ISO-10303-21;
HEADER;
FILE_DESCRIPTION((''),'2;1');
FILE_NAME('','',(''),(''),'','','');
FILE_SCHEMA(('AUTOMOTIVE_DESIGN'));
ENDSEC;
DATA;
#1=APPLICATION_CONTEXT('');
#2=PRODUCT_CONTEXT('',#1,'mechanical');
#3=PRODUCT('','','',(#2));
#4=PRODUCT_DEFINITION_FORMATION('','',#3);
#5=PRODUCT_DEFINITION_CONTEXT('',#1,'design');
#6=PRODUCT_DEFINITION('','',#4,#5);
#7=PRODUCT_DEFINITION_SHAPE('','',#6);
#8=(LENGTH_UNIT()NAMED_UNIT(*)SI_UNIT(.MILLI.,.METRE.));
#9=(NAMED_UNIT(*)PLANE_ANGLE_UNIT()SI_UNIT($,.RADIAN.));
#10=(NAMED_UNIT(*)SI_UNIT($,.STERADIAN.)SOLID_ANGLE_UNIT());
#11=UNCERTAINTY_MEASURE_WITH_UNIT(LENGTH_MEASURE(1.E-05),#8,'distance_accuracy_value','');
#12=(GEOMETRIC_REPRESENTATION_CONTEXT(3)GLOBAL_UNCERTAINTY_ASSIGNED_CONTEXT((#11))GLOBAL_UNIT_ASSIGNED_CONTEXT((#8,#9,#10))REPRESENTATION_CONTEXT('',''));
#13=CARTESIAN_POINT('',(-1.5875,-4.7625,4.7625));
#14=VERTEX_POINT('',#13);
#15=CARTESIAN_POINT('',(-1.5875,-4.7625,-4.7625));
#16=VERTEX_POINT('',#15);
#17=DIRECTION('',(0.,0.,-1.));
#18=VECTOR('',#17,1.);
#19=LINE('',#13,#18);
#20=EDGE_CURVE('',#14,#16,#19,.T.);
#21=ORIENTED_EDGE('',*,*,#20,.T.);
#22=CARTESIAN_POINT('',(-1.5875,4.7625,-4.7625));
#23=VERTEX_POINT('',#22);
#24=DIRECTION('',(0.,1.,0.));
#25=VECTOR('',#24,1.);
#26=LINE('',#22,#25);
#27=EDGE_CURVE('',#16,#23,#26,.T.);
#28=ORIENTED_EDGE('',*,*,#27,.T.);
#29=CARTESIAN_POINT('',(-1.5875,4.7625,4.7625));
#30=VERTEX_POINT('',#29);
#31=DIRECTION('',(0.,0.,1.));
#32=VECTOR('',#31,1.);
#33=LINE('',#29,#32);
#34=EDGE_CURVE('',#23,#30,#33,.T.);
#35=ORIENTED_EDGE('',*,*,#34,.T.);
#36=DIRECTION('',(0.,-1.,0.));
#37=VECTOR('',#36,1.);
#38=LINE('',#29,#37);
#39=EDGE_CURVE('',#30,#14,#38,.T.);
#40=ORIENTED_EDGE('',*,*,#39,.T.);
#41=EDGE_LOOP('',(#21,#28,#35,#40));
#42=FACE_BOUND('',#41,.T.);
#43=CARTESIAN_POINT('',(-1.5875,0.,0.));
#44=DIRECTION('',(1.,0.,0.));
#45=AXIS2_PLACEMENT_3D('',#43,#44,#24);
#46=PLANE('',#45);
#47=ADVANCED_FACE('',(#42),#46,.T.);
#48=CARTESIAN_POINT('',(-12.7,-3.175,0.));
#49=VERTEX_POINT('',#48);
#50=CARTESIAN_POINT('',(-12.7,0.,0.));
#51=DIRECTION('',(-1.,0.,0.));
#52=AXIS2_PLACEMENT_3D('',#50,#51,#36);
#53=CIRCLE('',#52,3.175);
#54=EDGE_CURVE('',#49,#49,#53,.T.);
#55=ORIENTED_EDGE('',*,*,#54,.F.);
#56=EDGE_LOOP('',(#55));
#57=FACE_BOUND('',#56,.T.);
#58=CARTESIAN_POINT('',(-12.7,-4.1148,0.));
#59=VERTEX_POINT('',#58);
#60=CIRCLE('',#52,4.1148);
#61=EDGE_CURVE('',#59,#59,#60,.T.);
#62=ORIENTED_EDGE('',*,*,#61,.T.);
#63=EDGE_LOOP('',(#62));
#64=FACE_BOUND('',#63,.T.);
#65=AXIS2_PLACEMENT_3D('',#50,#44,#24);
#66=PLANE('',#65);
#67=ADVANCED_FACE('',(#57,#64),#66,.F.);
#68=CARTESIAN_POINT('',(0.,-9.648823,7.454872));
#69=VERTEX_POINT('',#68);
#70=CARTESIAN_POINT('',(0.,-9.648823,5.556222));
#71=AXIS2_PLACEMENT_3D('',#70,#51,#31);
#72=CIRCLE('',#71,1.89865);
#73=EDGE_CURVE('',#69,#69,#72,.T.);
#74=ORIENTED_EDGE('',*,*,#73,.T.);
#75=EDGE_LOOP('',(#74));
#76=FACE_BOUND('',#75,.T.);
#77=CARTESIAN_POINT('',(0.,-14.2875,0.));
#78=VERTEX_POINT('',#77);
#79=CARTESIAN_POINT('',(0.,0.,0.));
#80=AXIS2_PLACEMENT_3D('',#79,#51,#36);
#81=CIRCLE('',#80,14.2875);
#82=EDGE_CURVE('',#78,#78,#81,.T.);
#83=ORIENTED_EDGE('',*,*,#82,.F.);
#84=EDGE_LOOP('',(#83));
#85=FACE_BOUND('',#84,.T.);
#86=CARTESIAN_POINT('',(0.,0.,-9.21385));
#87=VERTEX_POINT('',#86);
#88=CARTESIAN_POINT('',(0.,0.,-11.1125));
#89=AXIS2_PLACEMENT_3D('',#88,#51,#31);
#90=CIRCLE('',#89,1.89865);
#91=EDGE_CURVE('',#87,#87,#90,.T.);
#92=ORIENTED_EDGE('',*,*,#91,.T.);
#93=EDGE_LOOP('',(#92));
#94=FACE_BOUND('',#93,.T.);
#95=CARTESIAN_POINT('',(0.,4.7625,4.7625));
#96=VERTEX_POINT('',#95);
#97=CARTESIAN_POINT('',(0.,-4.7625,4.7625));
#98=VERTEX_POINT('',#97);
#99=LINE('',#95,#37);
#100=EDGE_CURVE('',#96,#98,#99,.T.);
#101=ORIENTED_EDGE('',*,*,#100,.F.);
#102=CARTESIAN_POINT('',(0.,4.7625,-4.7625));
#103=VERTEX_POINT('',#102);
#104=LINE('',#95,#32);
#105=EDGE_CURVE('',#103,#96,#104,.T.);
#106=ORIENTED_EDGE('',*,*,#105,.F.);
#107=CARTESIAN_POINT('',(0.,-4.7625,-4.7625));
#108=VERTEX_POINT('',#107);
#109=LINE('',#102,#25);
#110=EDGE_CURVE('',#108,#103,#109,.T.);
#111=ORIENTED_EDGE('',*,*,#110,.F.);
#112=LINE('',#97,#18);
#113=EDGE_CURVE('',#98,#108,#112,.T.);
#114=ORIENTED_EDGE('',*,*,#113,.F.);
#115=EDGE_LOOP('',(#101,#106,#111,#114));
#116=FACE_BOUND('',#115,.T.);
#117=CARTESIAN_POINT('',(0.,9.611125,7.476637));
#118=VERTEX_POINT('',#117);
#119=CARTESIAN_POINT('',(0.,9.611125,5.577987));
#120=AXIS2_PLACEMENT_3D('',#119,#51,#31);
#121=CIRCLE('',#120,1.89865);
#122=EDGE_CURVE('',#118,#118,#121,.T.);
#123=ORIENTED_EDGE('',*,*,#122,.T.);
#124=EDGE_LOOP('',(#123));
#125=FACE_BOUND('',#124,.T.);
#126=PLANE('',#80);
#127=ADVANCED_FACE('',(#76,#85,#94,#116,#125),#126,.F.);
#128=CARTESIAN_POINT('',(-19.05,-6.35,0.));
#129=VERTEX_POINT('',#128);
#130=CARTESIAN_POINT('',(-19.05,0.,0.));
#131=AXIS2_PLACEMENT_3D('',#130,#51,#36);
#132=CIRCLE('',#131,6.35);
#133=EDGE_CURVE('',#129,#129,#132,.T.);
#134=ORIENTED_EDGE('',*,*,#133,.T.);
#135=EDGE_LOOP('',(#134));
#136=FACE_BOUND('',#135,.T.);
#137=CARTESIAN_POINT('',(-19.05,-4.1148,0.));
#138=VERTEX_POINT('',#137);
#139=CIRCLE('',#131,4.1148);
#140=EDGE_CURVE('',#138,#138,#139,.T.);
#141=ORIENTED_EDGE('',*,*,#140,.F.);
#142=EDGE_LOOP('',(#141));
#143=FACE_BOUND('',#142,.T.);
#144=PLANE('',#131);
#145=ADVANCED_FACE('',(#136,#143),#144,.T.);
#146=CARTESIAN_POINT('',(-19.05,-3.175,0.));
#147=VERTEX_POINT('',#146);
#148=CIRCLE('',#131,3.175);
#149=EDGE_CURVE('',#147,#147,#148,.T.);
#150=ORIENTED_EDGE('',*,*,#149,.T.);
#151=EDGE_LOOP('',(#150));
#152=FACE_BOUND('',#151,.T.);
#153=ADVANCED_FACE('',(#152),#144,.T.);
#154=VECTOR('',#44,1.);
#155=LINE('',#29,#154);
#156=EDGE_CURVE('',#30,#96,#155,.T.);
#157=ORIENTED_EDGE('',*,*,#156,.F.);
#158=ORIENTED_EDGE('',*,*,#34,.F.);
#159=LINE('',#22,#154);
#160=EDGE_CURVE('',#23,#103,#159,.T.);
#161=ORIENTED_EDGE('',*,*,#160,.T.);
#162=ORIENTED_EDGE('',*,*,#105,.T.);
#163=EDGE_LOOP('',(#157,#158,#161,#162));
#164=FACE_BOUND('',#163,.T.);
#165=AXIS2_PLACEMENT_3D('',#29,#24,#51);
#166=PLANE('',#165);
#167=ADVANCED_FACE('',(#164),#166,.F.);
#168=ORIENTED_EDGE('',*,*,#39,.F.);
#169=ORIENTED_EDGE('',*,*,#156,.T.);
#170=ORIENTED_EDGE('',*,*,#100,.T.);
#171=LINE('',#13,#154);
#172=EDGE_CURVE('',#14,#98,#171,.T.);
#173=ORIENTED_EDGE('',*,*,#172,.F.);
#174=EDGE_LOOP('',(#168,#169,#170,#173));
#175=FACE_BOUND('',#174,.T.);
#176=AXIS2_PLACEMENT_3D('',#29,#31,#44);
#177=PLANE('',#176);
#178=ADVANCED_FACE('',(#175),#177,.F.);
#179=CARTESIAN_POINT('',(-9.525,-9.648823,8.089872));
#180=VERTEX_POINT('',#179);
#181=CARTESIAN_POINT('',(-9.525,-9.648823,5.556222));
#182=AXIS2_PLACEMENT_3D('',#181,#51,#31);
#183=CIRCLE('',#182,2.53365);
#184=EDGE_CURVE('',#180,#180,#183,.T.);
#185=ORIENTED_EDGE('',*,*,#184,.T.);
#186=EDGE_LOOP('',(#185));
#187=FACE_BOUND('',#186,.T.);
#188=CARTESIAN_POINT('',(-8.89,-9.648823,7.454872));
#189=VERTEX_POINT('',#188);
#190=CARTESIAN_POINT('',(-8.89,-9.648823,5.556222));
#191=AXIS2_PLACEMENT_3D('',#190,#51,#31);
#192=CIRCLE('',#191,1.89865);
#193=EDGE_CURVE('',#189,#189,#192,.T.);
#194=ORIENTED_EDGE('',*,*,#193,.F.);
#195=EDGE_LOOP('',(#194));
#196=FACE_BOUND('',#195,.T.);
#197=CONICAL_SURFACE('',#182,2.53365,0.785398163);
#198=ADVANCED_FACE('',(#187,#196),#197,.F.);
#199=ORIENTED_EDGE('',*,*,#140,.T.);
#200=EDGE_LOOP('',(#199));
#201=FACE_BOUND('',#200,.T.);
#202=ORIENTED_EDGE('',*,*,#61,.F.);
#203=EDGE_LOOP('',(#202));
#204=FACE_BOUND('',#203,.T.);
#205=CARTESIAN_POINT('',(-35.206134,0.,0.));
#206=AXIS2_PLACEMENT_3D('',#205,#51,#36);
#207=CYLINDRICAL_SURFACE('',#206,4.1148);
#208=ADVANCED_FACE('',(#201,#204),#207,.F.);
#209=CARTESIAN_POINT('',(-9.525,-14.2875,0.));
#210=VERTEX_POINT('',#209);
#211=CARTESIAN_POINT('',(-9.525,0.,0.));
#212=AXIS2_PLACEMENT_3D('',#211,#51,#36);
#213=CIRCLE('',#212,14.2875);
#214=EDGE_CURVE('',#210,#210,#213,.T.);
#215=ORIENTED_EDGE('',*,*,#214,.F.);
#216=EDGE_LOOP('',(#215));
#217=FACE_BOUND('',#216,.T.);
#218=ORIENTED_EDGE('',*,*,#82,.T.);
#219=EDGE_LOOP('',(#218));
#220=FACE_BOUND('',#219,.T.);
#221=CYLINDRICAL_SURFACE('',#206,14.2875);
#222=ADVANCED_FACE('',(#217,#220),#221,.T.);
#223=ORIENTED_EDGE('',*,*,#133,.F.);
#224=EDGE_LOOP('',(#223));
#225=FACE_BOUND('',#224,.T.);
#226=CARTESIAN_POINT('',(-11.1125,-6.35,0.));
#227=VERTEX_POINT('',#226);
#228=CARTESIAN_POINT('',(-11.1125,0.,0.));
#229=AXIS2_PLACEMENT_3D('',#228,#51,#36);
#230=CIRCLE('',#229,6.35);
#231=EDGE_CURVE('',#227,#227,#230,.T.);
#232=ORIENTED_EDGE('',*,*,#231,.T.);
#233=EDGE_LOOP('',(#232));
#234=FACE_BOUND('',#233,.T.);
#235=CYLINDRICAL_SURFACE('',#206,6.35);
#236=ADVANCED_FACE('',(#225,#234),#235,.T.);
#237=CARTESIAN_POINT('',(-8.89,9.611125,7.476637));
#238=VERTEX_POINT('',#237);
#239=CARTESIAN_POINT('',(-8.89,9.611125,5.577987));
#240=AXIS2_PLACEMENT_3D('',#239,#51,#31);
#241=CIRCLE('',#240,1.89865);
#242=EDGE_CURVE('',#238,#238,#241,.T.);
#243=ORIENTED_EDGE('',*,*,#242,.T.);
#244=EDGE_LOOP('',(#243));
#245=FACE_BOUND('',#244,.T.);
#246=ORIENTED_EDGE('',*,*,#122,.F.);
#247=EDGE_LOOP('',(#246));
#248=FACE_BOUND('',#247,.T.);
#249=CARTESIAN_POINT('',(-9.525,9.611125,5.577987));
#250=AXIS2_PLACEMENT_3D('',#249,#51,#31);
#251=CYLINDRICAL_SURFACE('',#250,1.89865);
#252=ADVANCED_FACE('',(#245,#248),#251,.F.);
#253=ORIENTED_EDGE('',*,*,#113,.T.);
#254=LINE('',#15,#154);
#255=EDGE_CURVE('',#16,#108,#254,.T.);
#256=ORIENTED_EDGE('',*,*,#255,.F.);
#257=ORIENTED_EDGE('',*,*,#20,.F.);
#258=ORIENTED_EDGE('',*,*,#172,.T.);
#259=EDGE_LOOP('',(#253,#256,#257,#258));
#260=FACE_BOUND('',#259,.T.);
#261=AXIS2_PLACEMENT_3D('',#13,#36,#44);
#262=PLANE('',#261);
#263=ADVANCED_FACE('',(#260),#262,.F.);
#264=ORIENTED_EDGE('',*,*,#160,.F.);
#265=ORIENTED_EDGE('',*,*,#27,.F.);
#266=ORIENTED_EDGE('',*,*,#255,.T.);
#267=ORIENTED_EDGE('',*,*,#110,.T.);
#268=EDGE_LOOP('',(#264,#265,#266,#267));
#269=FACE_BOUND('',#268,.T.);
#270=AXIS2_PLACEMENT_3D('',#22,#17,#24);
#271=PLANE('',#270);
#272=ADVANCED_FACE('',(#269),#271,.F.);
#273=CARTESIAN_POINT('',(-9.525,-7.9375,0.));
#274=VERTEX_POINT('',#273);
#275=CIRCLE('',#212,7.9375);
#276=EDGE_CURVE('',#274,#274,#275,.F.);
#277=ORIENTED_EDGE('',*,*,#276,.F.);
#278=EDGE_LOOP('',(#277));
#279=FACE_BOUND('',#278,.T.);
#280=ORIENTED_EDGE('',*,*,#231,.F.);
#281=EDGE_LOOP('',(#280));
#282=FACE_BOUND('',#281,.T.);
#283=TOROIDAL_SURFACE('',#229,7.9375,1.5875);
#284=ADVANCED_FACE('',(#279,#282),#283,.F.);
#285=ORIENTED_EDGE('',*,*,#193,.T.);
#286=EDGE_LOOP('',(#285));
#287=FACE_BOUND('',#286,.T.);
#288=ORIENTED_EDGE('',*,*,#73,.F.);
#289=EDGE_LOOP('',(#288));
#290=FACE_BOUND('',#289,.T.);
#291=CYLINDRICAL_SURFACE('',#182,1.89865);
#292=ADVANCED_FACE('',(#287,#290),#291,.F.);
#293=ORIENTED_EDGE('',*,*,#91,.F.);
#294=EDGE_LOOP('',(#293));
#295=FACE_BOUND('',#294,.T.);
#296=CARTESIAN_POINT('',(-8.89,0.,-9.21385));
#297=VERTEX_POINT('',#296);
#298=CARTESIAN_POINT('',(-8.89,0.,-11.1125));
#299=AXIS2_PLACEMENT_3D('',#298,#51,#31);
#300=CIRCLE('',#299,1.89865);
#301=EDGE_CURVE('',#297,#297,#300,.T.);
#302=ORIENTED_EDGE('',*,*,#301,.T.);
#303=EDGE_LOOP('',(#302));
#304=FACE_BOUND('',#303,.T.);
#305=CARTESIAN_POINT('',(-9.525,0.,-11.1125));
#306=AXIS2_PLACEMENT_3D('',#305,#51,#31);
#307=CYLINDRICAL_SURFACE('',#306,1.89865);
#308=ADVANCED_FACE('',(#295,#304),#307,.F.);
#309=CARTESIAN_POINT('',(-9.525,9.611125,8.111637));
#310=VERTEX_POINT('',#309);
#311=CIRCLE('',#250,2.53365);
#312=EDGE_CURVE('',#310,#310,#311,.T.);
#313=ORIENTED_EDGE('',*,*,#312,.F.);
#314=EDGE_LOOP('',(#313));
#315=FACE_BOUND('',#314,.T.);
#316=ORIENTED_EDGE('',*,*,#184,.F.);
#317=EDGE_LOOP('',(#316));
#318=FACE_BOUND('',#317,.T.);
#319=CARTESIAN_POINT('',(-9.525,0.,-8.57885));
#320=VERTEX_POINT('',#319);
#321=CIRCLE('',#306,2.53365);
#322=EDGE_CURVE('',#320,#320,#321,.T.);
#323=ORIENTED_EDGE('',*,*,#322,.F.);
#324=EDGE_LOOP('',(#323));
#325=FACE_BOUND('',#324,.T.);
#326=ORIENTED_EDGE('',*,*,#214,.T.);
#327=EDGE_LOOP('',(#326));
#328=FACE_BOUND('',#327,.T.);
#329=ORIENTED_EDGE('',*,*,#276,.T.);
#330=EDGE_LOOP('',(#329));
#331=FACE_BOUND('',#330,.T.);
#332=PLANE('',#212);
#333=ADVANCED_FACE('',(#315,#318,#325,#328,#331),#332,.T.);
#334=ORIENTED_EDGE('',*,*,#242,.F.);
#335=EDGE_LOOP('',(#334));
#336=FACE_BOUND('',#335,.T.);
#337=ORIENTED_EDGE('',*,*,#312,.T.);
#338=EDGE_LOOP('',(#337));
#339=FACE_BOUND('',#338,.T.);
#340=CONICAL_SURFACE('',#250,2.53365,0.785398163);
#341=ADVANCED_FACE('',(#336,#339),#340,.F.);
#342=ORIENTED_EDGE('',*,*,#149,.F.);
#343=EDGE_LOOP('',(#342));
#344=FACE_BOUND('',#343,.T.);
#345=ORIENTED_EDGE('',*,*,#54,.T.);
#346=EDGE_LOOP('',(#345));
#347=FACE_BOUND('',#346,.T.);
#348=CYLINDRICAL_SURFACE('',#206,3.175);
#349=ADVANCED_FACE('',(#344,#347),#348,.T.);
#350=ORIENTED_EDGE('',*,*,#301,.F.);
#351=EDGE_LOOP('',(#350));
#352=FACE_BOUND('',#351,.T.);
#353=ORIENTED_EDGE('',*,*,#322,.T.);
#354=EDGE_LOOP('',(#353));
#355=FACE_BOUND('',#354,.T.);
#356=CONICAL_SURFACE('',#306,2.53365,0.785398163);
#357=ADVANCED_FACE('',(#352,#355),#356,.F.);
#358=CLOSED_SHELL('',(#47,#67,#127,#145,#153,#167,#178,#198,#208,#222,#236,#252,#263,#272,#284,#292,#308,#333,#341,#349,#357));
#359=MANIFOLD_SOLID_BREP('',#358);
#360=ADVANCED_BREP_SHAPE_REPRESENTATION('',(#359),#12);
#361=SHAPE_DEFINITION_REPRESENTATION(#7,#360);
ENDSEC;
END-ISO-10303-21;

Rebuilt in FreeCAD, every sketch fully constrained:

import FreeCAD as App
import Part
import Sketcher
Q = App.Units.Quantity


def edges_at(feature, points):
    """Names of the edges that pass closest to the given points."""
    edges = feature.Shape.Edges
    near = lambda p: min(range(len(edges)), key=lambda i: edges[i].distToShape(Part.Vertex(*p))[0])
    return sorted({f"Edge{near(p) + 1}" for p in points})


def add_polygon(sketch, points):
    """Adds a closed chain of lines whose ends are joined by coincident constraints."""
    first, n = sketch.GeometryCount, len(points)
    for a, b in zip(points, points[1:] + points[:1]):
        sketch.addGeometry(Part.LineSegment(App.Vector(*a, 0), App.Vector(*b, 0)), False)
    for i in range(n):
        sketch.addConstraint(Sketcher.Constraint("Coincident", first + i, 2, first + (i + 1) % n, 1))

doc = App.newDocument("Part")
params = doc.addObject("Spreadsheet::Sheet", "Params")
for row, (alias, value) in enumerate([
    ("sketch1_width", "0.75 in"),
    ("sketch1_width2", "0.25 in"),
    ("sketch1_height", "0.5625 in"),
    ("sketch1_height2", "0.3125 in"),
    ("sketch1_height3", "0.088 in"),
    ("revolution_angle", "360 deg"),
    ("sketch2_width", "0.375 in"),
    ("pocket1_length", "0.0625 in"),
    ("fillet_radius", "0.0625 in"),
    ("hole_diameter", "0.1495 in"),
    ("hole_csink_diameter", "0.1995 in"),
], start=1):
    params.set(f"A{row}", alias)
    params.set(f"B{row}", "=" + value)
    params.setAlias(f"B{row}", alias)

body = doc.addObject("PartDesign::Body", "Body")

sketch1 = body.newObject("Sketcher::SketchObject", "Sketch")
sketch1.AttachmentSupport = (doc.getObject("XY_Plane"), [""])
sketch1.MapMode = "FlatFace"
add_polygon(sketch1, [(-19.1, 0), (0, 0), (0, 14.3), (-9.5, 14.3), (-9.5, 6.3), (-19.1, 6.3), (-19.1, 4.1), (-12.7, 4.1), (-12.7, 3.2), (-19.1, 3.2)])
sketch1.addConstraint(Sketcher.Constraint("Horizontal", 0))
sketch1.addConstraint(Sketcher.Constraint("Vertical", 1))
sketch1.addConstraint(Sketcher.Constraint("Horizontal", 2))
sketch1.addConstraint(Sketcher.Constraint("Vertical", 3))
sketch1.addConstraint(Sketcher.Constraint("Horizontal", 4))
sketch1.addConstraint(Sketcher.Constraint("Vertical", 5))
sketch1.addConstraint(Sketcher.Constraint("Horizontal", 6))
sketch1.addConstraint(Sketcher.Constraint("Vertical", 7))
sketch1.addConstraint(Sketcher.Constraint("Horizontal", 8))
sketch1.addConstraint(Sketcher.Constraint("Vertical", 9))
sketch1.addConstraint(Sketcher.Constraint("Coincident", 0, 2, -1, 1))
sketch1.addConstraint(Sketcher.Constraint("Vertical", 5, 2, 8, 2))
sketch1.addConstraint(Sketcher.Constraint("Equal", 2, 4))
sketch1.addConstraint(Sketcher.Constraint("DistanceX", 0, 1, 0, 2, Q("0.75 in")))
sketch1.addConstraint(Sketcher.Constraint("DistanceX", 6, 1, 6, 2, Q("0.25 in")))
sketch1.addConstraint(Sketcher.Constraint("DistanceY", 1, 1, 1, 2, Q("0.5625 in")))
sketch1.addConstraint(Sketcher.Constraint("DistanceY", 3, 2, 3, 1, Q("0.3125 in")))
sketch1.addConstraint(Sketcher.Constraint("DistanceY", 5, 2, 5, 1, Q("0.088 in")))
sketch1.addConstraint(Sketcher.Constraint("DistanceY", 7, 2, 7, 1, Q("0.037 in")))
sketch1.setExpression("Constraints[23]", "Params.sketch1_width")
sketch1.setExpression("Constraints[24]", "Params.sketch1_width2")
sketch1.setExpression("Constraints[25]", "Params.sketch1_height")
sketch1.setExpression("Constraints[26]", "Params.sketch1_height2")
sketch1.setExpression("Constraints[27]", "Params.sketch1_height3")
revolution = body.newObject("PartDesign::Revolution", "Revolution")
revolution.Profile = sketch1
revolution.ReferenceAxis = (sketch1, ["H_Axis"])
revolution.setExpression("Angle", "Params.revolution_angle")

sketch2 = body.newObject("Sketcher::SketchObject", "Sketch001")
sketch2.AttachmentSupport = (doc.getObject("YZ_Plane"), [""])
sketch2.MapMode = "FlatFace"
add_polygon(sketch2, [(5, 5), (-5, 5), (-5, -5), (5, -5)])
sketch2.addConstraint(Sketcher.Constraint("Horizontal", 0))
sketch2.addConstraint(Sketcher.Constraint("Vertical", 1))
sketch2.addConstraint(Sketcher.Constraint("Horizontal", 2))
sketch2.addConstraint(Sketcher.Constraint("Vertical", 3))
sketch2.addConstraint(Sketcher.Constraint("Symmetric", 0, 2, 2, 2, -1, 1))
sketch2.addConstraint(Sketcher.Constraint("Equal", 2, 1))
sketch2.addConstraint(Sketcher.Constraint("DistanceX", 0, 2, 0, 1, Q("0.375 in")))
sketch2.setExpression("Constraints[10]", "Params.sketch2_width")
pocket1 = body.newObject("PartDesign::Pocket", "Pocket")
pocket1.Profile = sketch2
pocket1.setExpression("Length", "Params.pocket1_length")
doc.recompute()

fillet = body.newObject("PartDesign::Fillet", "Fillet")
fillet.Base = (pocket1, edges_at(pocket1, [(-9.525, 6.35, 0)]))
fillet.setExpression("Radius", "Params.fillet_radius")

sketch3 = body.newObject("Sketcher::SketchObject", "Sketch002")
sketch3.AttachmentSupport = (doc.getObject("YZ_Plane"), [""])
sketch3.MapMode = "FlatFace"
sketch3.AttachmentOffset = App.Placement(App.Vector(0, 0, -0.375 * 25.4), App.Rotation())
sketch3.addGeometry(Part.Circle(App.Vector(0, -11.1, 0), App.Vector(0, 0, 1), 1.9), False)
sketch3.addGeometry(Part.Circle(App.Vector(9.6, 5.6, 0), App.Vector(0, 0, 1), 1.9), False)
sketch3.addGeometry(Part.Circle(App.Vector(-9.6, 5.6, 0), App.Vector(0, 0, 1), 1.9), False)
sketch3.addConstraint(Sketcher.Constraint("Equal", 0, 1))
sketch3.addConstraint(Sketcher.Constraint("Equal", 1, 2))
sketch3.addConstraint(Sketcher.Constraint("PointOnObject", 0, 3, -2))
sketch3.addConstraint(Sketcher.Constraint("Diameter", 0, Q("0.1495 in")))
sketch3.addConstraint(Sketcher.Constraint("DistanceY", 0, 3, -1, 1, Q("0.4375 in")))
sketch3.addConstraint(Sketcher.Constraint("DistanceY", -1, 1, 2, 3, Q("5.556222 mm")))
sketch3.addConstraint(Sketcher.Constraint("DistanceX", -1, 1, 1, 3, Q("9.611125 mm")))
sketch3.addConstraint(Sketcher.Constraint("DistanceY", -1, 1, 1, 3, Q("5.577987 mm")))
sketch3.addConstraint(Sketcher.Constraint("DistanceX", 2, 3, -1, 1, Q("9.648823 mm")))
doc.recompute()
hole = body.newObject("PartDesign::Hole", "Hole")
hole.Profile = sketch3
hole.ThreadType = "None"
hole.setExpression("Diameter", "Params.hole_diameter")
hole.DepthType = "ThroughAll"
hole.HoleCutType = "Countersink"
hole.setExpression("HoleCutDiameter", "Params.hole_csink_diameter")
hole.HoleCutCountersinkAngle = 90
hole.Reversed = True

doc.recompute()
